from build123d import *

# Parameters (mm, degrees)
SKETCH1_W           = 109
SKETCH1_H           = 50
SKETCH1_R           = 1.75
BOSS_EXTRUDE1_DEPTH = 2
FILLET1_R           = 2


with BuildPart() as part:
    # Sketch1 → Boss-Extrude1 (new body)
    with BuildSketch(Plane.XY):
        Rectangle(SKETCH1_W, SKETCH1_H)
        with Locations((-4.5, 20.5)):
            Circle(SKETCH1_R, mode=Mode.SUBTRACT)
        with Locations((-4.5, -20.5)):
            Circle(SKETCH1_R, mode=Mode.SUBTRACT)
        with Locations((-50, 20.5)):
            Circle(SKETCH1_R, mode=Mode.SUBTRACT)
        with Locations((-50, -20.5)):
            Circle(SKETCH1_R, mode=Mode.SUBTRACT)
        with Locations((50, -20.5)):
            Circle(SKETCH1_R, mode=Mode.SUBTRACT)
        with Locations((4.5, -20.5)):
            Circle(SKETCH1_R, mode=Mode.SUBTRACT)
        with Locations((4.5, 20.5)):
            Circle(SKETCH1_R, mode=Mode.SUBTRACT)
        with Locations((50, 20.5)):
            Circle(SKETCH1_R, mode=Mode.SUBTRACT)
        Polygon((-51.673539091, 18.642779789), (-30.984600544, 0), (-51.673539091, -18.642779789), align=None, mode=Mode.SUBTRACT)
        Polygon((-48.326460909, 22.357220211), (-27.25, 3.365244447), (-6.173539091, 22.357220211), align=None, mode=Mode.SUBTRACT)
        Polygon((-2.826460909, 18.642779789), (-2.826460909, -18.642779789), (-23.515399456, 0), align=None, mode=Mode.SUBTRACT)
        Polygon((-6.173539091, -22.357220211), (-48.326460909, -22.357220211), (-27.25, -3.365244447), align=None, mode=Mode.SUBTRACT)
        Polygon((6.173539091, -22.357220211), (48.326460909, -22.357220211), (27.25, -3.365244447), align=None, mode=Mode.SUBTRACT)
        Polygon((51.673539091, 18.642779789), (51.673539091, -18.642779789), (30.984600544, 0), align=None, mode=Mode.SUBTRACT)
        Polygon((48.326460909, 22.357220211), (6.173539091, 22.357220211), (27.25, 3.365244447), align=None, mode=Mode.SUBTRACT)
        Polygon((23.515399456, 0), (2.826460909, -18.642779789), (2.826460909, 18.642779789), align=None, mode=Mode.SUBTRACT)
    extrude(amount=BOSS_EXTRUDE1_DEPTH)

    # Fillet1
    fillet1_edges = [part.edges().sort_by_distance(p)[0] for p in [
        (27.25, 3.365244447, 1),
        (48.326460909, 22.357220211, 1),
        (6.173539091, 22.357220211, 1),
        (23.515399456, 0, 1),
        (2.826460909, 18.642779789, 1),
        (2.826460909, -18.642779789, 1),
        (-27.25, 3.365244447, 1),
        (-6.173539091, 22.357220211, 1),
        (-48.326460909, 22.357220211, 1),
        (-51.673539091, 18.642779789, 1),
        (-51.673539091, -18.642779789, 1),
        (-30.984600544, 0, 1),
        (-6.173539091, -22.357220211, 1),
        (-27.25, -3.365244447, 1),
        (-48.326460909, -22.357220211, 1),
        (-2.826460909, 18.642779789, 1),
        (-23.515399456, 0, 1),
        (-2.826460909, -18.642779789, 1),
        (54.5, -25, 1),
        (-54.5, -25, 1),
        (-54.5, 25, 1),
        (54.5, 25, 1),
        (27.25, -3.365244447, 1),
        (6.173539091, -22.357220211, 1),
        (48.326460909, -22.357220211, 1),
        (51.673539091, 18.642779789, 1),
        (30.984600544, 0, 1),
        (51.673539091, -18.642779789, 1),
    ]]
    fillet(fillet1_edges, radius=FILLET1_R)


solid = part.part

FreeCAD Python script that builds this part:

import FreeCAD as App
import Part
import Sketcher

V = App.Vector


def edges_at(feature, points):
    """Names of the edges that pass closest to the given points."""
    edges = feature.Shape.Edges
    near = lambda p: min(range(len(edges)), key=lambda i: edges[i].distToShape(Part.Vertex(*p))[0])
    return sorted({f"Edge{near(p) + 1}" for p in points})


def add_polygon(sketch, points):
    """Adds a closed chain of lines whose ends are joined by coincident constraints."""
    first, n = sketch.GeometryCount, len(points)
    for a, b in zip(points, points[1:] + points[:1]):
        sketch.addGeometry(Part.LineSegment(App.Vector(*a, 0), App.Vector(*b, 0)), False)
    for i in range(n):
        sketch.addConstraint(Sketcher.Constraint("Coincident", first + i, 2, first + (i + 1) % n, 1))

doc = App.newDocument("Part")
body = doc.addObject("PartDesign::Body", "Body")

# Sketch on XY plane
sketch1 = body.newObject("Sketcher::SketchObject", "Sketch")
sketch1.AttachmentSupport = (doc.getObject("XY_Plane"), [""])
sketch1.MapMode = "FlatFace"
add_polygon(sketch1, [(-54.5, 25), (-54.5, -25), (54.5, -25), (54.5, 25)])  # lines 0-3
sketch1.addGeometry(Part.Circle(V(-50, -20.5, 0), V(0, 0, 1), 1.75), False)  # 4
add_polygon(sketch1, [(-27.25, -3.365244), (-6.173539, -22.35722), (-48.326461, -22.35722)])  # lines 5-7
sketch1.addGeometry(Part.Circle(V(-4.5, -20.5, 0), V(0, 0, 1), 1.75), False)  # 8
sketch1.addGeometry(Part.Circle(V(4.5, -20.5, 0), V(0, 0, 1), 1.75), False)  # 9
sketch1.addGeometry(Part.Circle(V(50, -20.5, 0), V(0, 0, 1), 1.75), False)  # 10
add_polygon(sketch1, [(48.326461, -22.35722), (6.173539, -22.35722), (27.25, -3.365244)])  # lines 11-13
add_polygon(sketch1, [(-51.673539, -18.64278), (-51.673539, 18.64278), (-30.984601, 0)])  # lines 14-16
add_polygon(sketch1, [(-23.515399, 0), (-2.826461, 18.64278), (-2.826461, -18.64278)])  # lines 17-19
add_polygon(sketch1, [(-27.25, 3.365244), (-48.326461, 22.35722), (-6.173539, 22.35722)])  # lines 20-22
sketch1.addGeometry(Part.Circle(V(-50, 20.5, 0), V(0, 0, 1), 1.75), False)  # 23
sketch1.addGeometry(Part.Circle(V(-4.5, 20.5, 0), V(0, 0, 1), 1.75), False)  # 24
add_polygon(sketch1, [(2.826461, 18.64278), (23.515399, 0), (2.826461, -18.64278)])  # lines 25-27
add_polygon(sketch1, [(30.984601, 0), (51.673539, 18.64278), (51.673539, -18.64278)])  # lines 28-30
sketch1.addGeometry(Part.Circle(V(4.5, 20.5, 0), V(0, 0, 1), 1.75), False)  # 31
add_polygon(sketch1, [(6.173539, 22.35722), (48.326461, 22.35722), (27.25, 3.365244)])  # lines 32-34
sketch1.addGeometry(Part.Circle(V(50, 20.5, 0), V(0, 0, 1), 1.75), False)  # 35
sketch1.addConstraint(Sketcher.Constraint("Vertical", 0))
sketch1.addConstraint(Sketcher.Constraint("Horizontal", 1))
sketch1.addConstraint(Sketcher.Constraint("Vertical", 2))
sketch1.addConstraint(Sketcher.Constraint("Horizontal", 3))
sketch1.addConstraint(Sketcher.Constraint("Horizontal", 6))
sketch1.addConstraint(Sketcher.Constraint("Horizontal", 11))
sketch1.addConstraint(Sketcher.Constraint("Vertical", 14))
sketch1.addConstraint(Sketcher.Constraint("Vertical", 18))
sketch1.addConstraint(Sketcher.Constraint("Horizontal", 21))
sketch1.addConstraint(Sketcher.Constraint("Vertical", 27))
sketch1.addConstraint(Sketcher.Constraint("Vertical", 29))
sketch1.addConstraint(Sketcher.Constraint("Horizontal", 32))
sketch1.addConstraint(Sketcher.Constraint("Equal", 4, 8))
sketch1.addConstraint(Sketcher.Constraint("Equal", 8, 9))
sketch1.addConstraint(Sketcher.Constraint("Equal", 9, 10))
sketch1.addConstraint(Sketcher.Constraint("Equal", 10, 23))
sketch1.addConstraint(Sketcher.Constraint("Equal", 23, 24))
sketch1.addConstraint(Sketcher.Constraint("Equal", 24, 31))
sketch1.addConstraint(Sketcher.Constraint("Equal", 31, 35))
sketch1.addConstraint(Sketcher.Constraint("Symmetric", 10, 3, 23, 3, -1, 1))
sketch1.addConstraint(Sketcher.Constraint("Symmetric", 9, 3, 24, 3, -1, 1))
sketch1.addConstraint(Sketcher.Constraint("Symmetric", 8, 3, 31, 3, -1, 1))
sketch1.addConstraint(Sketcher.Constraint("Symmetric", 4, 3, 35, 3, -1, 1))
sketch1.addConstraint(Sketcher.Constraint("Symmetric", 0, 2, 2, 2, -1, 1))
sketch1.addConstraint(Sketcher.Constraint("Symmetric", 13, 2, 20, 2, -1, 1))
sketch1.addConstraint(Sketcher.Constraint("Symmetric", 12, 2, 22, 2, -1, 1))
sketch1.addConstraint(Sketcher.Constraint("Symmetric", 19, 2, 25, 2, -1, 1))
sketch1.addConstraint(Sketcher.Constraint("Symmetric", 17, 2, 26, 2, -1, 1))
sketch1.addConstraint(Sketcher.Constraint("Symmetric", 16, 2, 28, 2, -1, 1))
sketch1.addConstraint(Sketcher.Constraint("Symmetric", 15, 2, 30, 2, -1, 1))
sketch1.addConstraint(Sketcher.Constraint("Symmetric", 6, 2, 32, 2, -1, 1))
sketch1.addConstraint(Sketcher.Constraint("Symmetric", 7, 2, 33, 2, -1, 1))
sketch1.addConstraint(Sketcher.Constraint("Symmetric", 8, 3, 9, 3, -2))
sketch1.addConstraint(Sketcher.Constraint("Symmetric", 4, 3, 10, 3, -2))
sketch1.addConstraint(Sketcher.Constraint("Symmetric", 5, 2, 11, 2, -2))
sketch1.addConstraint(Sketcher.Constraint("Symmetric", 7, 2, 12, 2, -2))
sketch1.addConstraint(Sketcher.Constraint("PointOnObject", 15, 2, -1))
sketch1.addConstraint(Sketcher.Constraint("PointOnObject", 19, 2, -1))
sketch1.addConstraint(Sketcher.Constraint("Parallel", 7, 12))
sketch1.addConstraint(Sketcher.Constraint("Parallel", 5, 13))
sketch1.addConstraint(Sketcher.Constraint("Parallel", 13, 15))
sketch1.addConstraint(Sketcher.Constraint("Parallel", 12, 16))
sketch1.addConstraint(Sketcher.Constraint("Parallel", 16, 17))
sketch1.addConstraint(Sketcher.Constraint("Parallel", 15, 19))
sketch1.addConstraint(Sketcher.Constraint("Parallel", 17, 22))
sketch1.addConstraint(Sketcher.Constraint("Parallel", 20, 25))
sketch1.addConstraint(Sketcher.Constraint("Parallel", 25, 30))
sketch1.addConstraint(Sketcher.Constraint("Parallel", 30, 34))
sketch1.addConstraint(Sketcher.Constraint("Horizontal", 4, 3, 8, 3))
sketch1.addConstraint(Sketcher.Constraint("Horizontal", 14, 2, 17, 2))
sketch1.addConstraint(Sketcher.Constraint("Diameter", 4, 3.5))
sketch1.addConstraint(Sketcher.Constraint("DistanceX", 1, 1, 1, 2, 109.0))
sketch1.addConstraint(Sketcher.Constraint("DistanceY", 0, 2, 0, 1, 50.0))
sketch1.addConstraint(Sketcher.Constraint("DistanceX", 4, 3, -1, 1, 50.0))
sketch1.addConstraint(Sketcher.Constraint("DistanceX", 8, 3, 9, 3, 9.0))
sketch1.addConstraint(Sketcher.Constraint("DistanceY", 4, 3, 23, 3, 41.0))
sketch1.addConstraint(Sketcher.Constraint("DistanceY", 6, 2, 14, 2, 41.0))
sketch1.addConstraint(Sketcher.Constraint("DistanceX", 18, 2, 11, 2, 9.0))
sketch1.addConstraint(Sketcher.Constraint("DistanceX", 7, 2, -1, 1, 27.25))
sketch1.addConstraint(Sketcher.Constraint("DistanceX", 6, 2, 6, 1, 42.152922))
sketch1.addConstraint(Sketcher.Constraint("DistanceY", 14, 1, 14, 2, 37.28556))
sketch1.addConstraint(Sketcher.Constraint("DistanceX", 15, 2, -1, 1, 30.984601))
sketch1.addConstraint(Sketcher.Constraint("DistanceX", 19, 2, -1, 1, 23.515399))
pad1 = body.newObject("PartDesign::Pad", "Pad")
pad1.Profile = sketch1
pad1.Length = 2
doc.recompute()

fillet = body.newObject("PartDesign::Fillet", "Fillet")
fillet.Base = (pad1, edges_at(pad1, [
    (27.25, 3.365, 1),
    (48.326, 22.357, 1),
    (6.174, 22.357, 1),
    (23.515, 0, 1),
    (2.826, 18.643, 1),
    (2.826, -18.643, 1),
    (-27.25, 3.365, 1),
    (-6.174, 22.357, 1),
    (-48.326, 22.357, 1),
    (-51.674, 18.643, 1),
    (-51.674, -18.643, 1),
    (-30.985, 0, 1),
    (-6.174, -22.357, 1),
    (-27.25, -3.365, 1),
    (-48.326, -22.357, 1),
    (-2.826, 18.643, 1),
    (-23.515, 0, 1),
    (-2.826, -18.643, 1),
    (54.5, -25, 1),
    (-54.5, -25, 1),
    (-54.5, 25, 1),
    (54.5, 25, 1),
    (27.25, -3.365, 1),
    (6.174, -22.357, 1),
    (48.326, -22.357, 1),
    (51.674, 18.643, 1),
    (30.985, 0, 1),
    (51.674, -18.643, 1),
]))
fillet.Radius = 2

doc.recompute()
